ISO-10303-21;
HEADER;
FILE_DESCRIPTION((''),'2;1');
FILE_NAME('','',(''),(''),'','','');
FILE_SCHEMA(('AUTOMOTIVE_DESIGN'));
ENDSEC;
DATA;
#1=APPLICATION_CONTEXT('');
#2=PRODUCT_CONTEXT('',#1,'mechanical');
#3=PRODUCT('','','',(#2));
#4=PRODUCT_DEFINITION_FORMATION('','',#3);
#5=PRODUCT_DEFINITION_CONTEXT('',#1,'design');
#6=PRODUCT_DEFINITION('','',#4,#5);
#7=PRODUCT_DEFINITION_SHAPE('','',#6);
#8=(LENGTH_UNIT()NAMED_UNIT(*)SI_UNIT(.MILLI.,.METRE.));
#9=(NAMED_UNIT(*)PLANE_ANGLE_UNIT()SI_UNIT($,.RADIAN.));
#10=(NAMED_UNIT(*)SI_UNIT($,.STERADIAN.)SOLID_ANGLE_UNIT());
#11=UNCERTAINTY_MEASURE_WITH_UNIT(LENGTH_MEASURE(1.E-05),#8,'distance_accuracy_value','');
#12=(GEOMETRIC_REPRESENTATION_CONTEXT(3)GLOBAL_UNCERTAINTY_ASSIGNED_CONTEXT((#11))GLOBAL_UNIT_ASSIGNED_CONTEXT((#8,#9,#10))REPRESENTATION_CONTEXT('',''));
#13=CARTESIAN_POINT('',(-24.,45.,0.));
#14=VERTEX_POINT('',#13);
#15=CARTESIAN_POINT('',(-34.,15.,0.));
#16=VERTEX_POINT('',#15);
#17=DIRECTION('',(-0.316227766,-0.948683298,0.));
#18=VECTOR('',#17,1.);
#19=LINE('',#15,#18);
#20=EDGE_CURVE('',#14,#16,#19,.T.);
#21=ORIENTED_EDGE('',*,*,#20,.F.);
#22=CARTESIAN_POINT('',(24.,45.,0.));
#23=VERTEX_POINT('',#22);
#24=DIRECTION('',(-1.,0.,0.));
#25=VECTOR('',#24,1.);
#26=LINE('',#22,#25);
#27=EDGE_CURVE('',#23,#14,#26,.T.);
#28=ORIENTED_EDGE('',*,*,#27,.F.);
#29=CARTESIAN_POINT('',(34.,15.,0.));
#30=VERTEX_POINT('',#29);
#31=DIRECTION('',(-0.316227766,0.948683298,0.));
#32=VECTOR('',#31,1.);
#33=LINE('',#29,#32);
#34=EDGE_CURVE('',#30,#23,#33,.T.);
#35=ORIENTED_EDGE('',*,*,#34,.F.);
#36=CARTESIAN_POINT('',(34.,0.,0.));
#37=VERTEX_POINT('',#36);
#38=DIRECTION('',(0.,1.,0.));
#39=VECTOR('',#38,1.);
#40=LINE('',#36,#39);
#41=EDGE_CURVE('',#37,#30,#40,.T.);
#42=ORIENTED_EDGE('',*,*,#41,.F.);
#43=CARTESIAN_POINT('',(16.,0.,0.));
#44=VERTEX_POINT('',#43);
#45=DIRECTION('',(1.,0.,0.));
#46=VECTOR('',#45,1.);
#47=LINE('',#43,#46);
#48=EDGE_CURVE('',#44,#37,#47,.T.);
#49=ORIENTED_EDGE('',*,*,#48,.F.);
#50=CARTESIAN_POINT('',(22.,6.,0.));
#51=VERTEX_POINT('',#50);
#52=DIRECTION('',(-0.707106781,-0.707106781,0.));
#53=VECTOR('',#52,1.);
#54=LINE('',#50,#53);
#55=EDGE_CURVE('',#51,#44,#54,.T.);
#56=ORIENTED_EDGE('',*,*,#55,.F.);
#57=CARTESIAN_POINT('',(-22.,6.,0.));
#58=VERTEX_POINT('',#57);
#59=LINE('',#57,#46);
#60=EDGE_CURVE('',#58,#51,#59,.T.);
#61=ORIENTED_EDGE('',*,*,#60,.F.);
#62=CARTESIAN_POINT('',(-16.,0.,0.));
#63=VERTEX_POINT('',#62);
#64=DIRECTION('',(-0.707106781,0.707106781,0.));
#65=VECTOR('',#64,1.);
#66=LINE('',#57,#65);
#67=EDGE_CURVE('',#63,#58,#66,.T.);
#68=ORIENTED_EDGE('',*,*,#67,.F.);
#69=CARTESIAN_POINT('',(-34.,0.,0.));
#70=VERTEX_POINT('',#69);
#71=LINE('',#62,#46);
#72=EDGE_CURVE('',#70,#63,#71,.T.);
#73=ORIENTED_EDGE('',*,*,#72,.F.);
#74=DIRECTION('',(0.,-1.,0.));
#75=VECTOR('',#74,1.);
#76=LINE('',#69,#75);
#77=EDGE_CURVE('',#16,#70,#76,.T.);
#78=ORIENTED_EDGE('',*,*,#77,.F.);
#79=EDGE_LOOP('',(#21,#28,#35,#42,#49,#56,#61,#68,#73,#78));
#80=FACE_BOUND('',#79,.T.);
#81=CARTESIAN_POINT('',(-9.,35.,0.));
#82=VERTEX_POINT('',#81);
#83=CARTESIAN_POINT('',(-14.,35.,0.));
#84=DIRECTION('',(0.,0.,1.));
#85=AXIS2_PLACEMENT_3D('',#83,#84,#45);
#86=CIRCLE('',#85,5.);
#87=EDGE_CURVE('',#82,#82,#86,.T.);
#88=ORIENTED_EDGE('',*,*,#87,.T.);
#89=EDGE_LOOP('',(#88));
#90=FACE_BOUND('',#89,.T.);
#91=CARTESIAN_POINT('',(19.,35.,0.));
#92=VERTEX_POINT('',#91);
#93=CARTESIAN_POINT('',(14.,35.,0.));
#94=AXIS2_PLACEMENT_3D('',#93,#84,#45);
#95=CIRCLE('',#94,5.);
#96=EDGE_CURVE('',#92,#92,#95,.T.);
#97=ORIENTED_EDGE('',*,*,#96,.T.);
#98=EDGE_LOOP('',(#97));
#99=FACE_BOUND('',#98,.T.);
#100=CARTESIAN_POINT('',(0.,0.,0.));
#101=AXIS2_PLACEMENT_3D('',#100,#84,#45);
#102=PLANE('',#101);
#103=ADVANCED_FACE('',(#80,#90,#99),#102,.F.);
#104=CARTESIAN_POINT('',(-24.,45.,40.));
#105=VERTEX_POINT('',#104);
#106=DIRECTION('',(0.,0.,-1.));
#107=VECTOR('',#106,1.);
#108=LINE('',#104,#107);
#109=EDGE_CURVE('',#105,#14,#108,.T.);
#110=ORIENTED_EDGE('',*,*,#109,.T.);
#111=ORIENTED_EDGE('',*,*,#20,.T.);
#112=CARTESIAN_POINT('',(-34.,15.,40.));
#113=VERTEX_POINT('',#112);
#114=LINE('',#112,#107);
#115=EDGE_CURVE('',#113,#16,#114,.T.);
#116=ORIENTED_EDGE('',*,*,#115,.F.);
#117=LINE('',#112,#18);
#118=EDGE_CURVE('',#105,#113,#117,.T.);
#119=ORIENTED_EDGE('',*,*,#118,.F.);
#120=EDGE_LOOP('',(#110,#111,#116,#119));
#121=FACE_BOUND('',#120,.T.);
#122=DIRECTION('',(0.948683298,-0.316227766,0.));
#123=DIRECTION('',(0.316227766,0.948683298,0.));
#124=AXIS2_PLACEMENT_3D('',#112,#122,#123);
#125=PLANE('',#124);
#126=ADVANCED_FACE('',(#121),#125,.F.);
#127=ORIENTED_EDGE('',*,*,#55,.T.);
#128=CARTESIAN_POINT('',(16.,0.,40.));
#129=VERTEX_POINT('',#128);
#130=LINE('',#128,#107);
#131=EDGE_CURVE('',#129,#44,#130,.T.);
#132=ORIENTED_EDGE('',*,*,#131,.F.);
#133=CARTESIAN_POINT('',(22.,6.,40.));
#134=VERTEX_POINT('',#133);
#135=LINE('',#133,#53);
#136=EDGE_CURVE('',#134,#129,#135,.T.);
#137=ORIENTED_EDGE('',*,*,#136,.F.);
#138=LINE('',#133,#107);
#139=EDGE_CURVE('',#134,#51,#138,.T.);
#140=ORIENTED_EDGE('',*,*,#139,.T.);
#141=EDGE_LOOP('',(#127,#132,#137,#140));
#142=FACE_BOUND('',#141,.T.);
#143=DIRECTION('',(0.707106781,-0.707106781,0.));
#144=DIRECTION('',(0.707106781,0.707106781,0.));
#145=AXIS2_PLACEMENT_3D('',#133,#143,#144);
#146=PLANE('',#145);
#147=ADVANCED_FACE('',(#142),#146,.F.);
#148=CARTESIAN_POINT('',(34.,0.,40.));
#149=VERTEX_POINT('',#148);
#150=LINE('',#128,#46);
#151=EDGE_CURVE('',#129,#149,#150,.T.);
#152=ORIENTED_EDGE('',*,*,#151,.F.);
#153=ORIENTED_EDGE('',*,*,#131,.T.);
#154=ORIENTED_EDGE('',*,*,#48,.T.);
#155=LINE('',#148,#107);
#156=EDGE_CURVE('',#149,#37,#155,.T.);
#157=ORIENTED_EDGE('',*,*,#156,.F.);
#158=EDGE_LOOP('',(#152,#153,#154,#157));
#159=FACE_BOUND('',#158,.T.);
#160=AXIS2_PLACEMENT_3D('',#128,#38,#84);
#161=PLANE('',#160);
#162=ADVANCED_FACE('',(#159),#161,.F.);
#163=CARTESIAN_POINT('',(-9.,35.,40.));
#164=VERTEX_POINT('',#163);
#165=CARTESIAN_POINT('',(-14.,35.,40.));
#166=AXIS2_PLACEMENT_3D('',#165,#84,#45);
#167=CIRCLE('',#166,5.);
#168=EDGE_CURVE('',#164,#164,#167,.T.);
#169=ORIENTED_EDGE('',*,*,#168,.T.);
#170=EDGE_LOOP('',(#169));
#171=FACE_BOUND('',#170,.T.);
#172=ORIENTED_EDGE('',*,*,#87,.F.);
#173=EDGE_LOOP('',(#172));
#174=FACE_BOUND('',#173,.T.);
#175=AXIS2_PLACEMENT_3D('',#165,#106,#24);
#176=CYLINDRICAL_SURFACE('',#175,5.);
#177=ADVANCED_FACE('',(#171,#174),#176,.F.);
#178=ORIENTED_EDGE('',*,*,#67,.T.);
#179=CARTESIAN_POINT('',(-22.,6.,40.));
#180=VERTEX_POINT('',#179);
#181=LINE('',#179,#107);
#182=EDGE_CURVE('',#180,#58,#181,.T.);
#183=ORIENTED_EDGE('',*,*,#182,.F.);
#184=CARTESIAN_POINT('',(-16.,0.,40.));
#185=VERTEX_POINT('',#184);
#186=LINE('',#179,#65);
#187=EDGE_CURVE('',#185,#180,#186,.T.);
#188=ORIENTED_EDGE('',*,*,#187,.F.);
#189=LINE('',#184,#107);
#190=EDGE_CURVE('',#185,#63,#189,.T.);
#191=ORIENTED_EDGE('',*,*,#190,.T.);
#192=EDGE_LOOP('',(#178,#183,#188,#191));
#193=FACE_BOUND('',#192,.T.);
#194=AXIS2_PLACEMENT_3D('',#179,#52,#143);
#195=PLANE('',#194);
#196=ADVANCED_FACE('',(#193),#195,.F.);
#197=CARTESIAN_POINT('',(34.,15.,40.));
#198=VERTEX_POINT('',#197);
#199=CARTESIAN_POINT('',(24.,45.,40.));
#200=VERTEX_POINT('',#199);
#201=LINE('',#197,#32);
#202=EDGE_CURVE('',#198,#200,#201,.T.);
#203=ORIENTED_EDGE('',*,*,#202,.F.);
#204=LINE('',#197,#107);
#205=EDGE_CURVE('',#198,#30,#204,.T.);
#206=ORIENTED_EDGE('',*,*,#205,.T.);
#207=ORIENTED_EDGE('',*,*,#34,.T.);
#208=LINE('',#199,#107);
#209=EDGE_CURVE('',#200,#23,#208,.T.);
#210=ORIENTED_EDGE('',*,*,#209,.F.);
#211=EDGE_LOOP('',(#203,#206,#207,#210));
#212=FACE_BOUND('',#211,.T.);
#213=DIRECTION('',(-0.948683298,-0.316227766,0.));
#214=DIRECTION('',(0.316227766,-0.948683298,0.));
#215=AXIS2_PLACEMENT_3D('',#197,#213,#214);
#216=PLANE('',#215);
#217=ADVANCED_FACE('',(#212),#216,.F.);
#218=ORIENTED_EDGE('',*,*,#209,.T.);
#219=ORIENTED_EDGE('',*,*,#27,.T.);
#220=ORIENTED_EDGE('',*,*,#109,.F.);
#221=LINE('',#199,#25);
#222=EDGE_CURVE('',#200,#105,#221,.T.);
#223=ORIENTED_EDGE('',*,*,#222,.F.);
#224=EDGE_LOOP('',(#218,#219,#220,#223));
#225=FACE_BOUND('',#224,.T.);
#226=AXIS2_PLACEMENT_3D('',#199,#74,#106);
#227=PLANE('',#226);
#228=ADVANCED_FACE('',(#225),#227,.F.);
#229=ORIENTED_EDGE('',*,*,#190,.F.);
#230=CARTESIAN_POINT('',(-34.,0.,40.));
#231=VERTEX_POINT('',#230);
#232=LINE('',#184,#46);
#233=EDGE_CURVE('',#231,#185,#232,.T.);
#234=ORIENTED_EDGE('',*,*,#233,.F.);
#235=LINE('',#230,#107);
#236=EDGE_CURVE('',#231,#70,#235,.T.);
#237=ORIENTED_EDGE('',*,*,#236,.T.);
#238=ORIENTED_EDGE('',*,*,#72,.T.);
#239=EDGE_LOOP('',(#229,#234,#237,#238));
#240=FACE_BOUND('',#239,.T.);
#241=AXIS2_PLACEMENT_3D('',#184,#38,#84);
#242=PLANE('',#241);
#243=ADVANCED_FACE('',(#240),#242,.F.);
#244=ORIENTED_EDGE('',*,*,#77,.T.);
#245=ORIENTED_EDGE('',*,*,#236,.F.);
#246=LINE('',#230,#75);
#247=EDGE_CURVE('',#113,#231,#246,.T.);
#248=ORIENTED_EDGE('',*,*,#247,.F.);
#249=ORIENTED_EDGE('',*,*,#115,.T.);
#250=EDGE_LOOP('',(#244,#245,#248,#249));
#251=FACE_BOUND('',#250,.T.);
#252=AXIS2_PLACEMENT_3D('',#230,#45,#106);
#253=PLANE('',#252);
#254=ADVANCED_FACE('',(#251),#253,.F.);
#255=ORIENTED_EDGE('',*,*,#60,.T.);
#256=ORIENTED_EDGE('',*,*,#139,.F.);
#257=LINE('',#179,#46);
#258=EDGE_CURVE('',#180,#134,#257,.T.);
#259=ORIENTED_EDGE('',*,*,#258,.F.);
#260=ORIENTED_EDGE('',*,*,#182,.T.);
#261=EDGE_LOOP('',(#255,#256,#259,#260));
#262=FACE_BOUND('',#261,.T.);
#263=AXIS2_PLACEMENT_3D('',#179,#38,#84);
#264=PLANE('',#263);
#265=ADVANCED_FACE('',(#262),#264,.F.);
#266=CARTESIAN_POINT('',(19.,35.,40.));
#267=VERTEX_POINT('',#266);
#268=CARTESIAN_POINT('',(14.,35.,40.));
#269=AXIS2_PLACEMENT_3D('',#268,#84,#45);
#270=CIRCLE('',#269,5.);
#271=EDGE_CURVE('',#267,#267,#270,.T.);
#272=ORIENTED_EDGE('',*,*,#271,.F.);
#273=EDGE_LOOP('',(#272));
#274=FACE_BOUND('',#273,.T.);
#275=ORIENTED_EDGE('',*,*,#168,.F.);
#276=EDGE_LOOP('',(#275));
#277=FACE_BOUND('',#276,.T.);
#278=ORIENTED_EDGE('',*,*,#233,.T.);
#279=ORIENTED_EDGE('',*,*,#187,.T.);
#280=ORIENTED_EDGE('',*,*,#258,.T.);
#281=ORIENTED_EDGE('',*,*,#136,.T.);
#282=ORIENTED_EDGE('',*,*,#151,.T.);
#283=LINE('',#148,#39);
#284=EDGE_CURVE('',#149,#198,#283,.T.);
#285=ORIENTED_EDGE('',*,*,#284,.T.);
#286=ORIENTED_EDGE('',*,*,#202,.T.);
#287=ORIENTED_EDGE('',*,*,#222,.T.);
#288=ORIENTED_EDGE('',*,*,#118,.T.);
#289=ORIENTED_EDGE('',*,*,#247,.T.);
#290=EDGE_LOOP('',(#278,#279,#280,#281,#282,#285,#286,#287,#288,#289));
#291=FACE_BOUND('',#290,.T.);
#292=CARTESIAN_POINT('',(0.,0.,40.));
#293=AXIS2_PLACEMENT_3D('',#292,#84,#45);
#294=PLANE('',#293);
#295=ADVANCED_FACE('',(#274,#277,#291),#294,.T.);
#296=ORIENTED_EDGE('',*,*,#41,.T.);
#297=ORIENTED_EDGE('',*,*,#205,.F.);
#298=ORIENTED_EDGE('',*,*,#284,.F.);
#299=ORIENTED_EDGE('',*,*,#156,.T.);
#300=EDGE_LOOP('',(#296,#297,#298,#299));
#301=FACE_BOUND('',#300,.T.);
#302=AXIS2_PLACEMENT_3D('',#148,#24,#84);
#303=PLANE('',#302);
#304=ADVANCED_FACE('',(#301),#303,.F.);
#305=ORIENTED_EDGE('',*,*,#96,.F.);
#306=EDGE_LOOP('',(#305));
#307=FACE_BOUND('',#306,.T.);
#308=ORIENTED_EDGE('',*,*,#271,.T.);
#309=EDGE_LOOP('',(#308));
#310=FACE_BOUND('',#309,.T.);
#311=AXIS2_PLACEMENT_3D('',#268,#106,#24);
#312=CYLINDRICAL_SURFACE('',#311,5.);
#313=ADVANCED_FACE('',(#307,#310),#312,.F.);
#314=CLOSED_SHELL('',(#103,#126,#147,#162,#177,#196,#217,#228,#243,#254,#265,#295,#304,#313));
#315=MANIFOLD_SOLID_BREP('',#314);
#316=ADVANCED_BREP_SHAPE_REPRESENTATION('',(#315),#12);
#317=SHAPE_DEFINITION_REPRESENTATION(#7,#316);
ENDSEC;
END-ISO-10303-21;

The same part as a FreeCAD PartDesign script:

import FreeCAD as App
import Part
import Sketcher
Q = App.Units.Quantity


def add_polygon(sketch, points):
    """Adds a closed chain of lines whose ends are joined by coincident constraints."""
    first, n = sketch.GeometryCount, len(points)
    for a, b in zip(points, points[1:] + points[:1]):
        sketch.addGeometry(Part.LineSegment(App.Vector(*a, 0), App.Vector(*b, 0)), False)
    for i in range(n):
        sketch.addConstraint(Sketcher.Constraint("Coincident", first + i, 2, first + (i + 1) % n, 1))

doc = App.newDocument("Part")
params = doc.addObject("Spreadsheet::Sheet", "Params")
for row, (alias, value) in enumerate([
    ("sketch1_diameter", "10 mm"),
    ("sketch1_width", "44 mm"),
    ("sketch1_width2", "18 mm"),
    ("sketch1_width3", "48 mm"),
    ("sketch1_height", "15 mm"),
    ("pad1_length", "40 mm"),
], start=1):
    params.set(f"A{row}", alias)
    params.set(f"B{row}", "=" + value)
    params.setAlias(f"B{row}", alias)

body = doc.addObject("PartDesign::Body", "Body")

# Sketch on XY plane
sketch1 = body.newObject("Sketcher::SketchObject", "Sketch")
sketch1.AttachmentSupport = (doc.getObject("XY_Plane"), [""])
sketch1.MapMode = "FlatFace"
add_polygon(sketch1, [(-22, 6), (22, 6), (16, 0), (34, 0), (34, 15), (24, 45), (-24, 45), (-34, 15), (-34, 0), (-16, 0)])  # lines 0-9
sketch1.addGeometry(Part.Circle(App.Vector(-14, 35, 0), App.Vector(0, 0, 1), 5), False)  # 10
sketch1.addGeometry(Part.Circle(App.Vector(14, 35, 0), App.Vector(0, 0, 1), 5), False)  # 11
sketch1.addConstraint(Sketcher.Constraint("Horizontal", 0))
sketch1.addConstraint(Sketcher.Constraint("Horizontal", 2))
sketch1.addConstraint(Sketcher.Constraint("Vertical", 3))
sketch1.addConstraint(Sketcher.Constraint("Horizontal", 5))
sketch1.addConstraint(Sketcher.Constraint("Vertical", 7))
sketch1.addConstraint(Sketcher.Constraint("Horizontal", 8))
sketch1.addConstraint(Sketcher.Constraint("Equal", 10, 11))
sketch1.addConstraint(Sketcher.Constraint("Symmetric", 2, 2, 7, 2, -1, 1))
sketch1.addConstraint(Sketcher.Constraint("Symmetric", 10, 3, 11, 3, -2))
sketch1.addConstraint(Sketcher.Constraint("Symmetric", 1, 2, 8, 2, -2))
sketch1.addConstraint(Sketcher.Constraint("Perpendicular", 1, 9))
sketch1.addConstraint(Sketcher.Constraint("Horizontal", 3, 2, 6, 2))
sketch1.addConstraint(Sketcher.Constraint("Equal", 4, 6))
sketch1.addConstraint(Sketcher.Constraint("Equal", 1, 9))
sketch1.addConstraint(Sketcher.Constraint("Diameter", 10, Q("10 mm")))
sketch1.addConstraint(Sketcher.Constraint("DistanceX", 0, 1, 0, 2, Q("44 mm")))
sketch1.addConstraint(Sketcher.Constraint("DistanceX", 2, 1, 2, 2, Q("18 mm")))
sketch1.addConstraint(Sketcher.Constraint("DistanceX", 5, 2, 5, 1, Q("48 mm")))
sketch1.addConstraint(Sketcher.Constraint("DistanceY", 3, 1, 3, 2, Q("15 mm")))
sketch1.addConstraint(Sketcher.Constraint("DistanceX", 10, 3, -1, 1, Q("14 mm")))
sketch1.addConstraint(Sketcher.Constraint("DistanceY", -1, 1, 10, 3, Q("35 mm")))
sketch1.addConstraint(Sketcher.Constraint("DistanceY", -1, 1, 0, 2, Q("6 mm")))
sketch1.addConstraint(Sketcher.Constraint("DistanceY", -1, 1, 4, 2, Q("45 mm")))
sketch1.setExpression("Constraints[24]", "Params.sketch1_diameter")
sketch1.setExpression("Constraints[25]", "Params.sketch1_width")
sketch1.setExpression("Constraints[26]", "Params.sketch1_width2")
sketch1.setExpression("Constraints[27]", "Params.sketch1_width3")
sketch1.setExpression("Constraints[28]", "Params.sketch1_height")
pad1 = body.newObject("PartDesign::Pad", "Pad")
pad1.Profile = sketch1
pad1.setExpression("Length", "Params.pad1_length")

doc.recompute()
